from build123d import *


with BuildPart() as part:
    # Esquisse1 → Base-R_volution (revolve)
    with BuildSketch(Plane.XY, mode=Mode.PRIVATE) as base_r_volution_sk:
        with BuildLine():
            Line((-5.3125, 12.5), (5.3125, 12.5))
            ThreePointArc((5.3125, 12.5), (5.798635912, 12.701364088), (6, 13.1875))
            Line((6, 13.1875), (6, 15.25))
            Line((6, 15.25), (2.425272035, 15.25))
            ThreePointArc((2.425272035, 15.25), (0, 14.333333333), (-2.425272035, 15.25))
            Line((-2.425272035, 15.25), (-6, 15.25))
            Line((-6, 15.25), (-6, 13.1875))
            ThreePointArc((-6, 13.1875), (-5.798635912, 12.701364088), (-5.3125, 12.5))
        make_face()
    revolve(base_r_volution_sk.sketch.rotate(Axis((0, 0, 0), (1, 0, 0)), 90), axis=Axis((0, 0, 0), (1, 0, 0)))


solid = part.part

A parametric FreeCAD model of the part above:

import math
import FreeCAD as App
import Part
import Sketcher
Q = App.Units.Quantity

doc = App.newDocument("Part")
params = doc.addObject("Spreadsheet::Sheet", "Params")
for row, (alias, value) in enumerate([
    ("revolution_angle", "360 deg"),
], start=1):
    params.set(f"A{row}", alias)
    params.set(f"B{row}", "=" + value)
    params.setAlias(f"B{row}", alias)

body = doc.addObject("PartDesign::Body", "Body")

# Sketch on XY plane
sketch1 = body.newObject("Sketcher::SketchObject", "Sketch")
sketch1.AttachmentSupport = (doc.getObject("XY_Plane"), [""])
sketch1.MapMode = "FlatFace"
sketch1.addGeometry(Part.LineSegment(App.Vector(-5.3125, 12.5, 0), App.Vector(5.3125, 12.5, 0)), False)
sketch1.addGeometry(Part.ArcOfCircle(Part.Circle(App.Vector(5.3125, 13.1875, 0), App.Vector(0, 0, 1), 0.6875), math.radians(-90), math.radians(0)), False)
sketch1.addGeometry(Part.LineSegment(App.Vector(6, 13.1875, 0), App.Vector(6, 15.25, 0)), False)
sketch1.addGeometry(Part.LineSegment(App.Vector(6, 15.25, 0), App.Vector(2.425272, 15.25, 0)), False)
sketch1.addGeometry(Part.ArcOfCircle(Part.Circle(App.Vector(0, 18, 0), App.Vector(0, 0, 1), 3.666667), math.radians(-131.409622), math.radians(-48.590378)), False)
sketch1.addGeometry(Part.LineSegment(App.Vector(-2.425272, 15.25, 0), App.Vector(-6, 15.25, 0)), False)
sketch1.addGeometry(Part.LineSegment(App.Vector(-6, 15.25, 0), App.Vector(-6, 13.1875, 0)), False)
sketch1.addGeometry(Part.ArcOfCircle(Part.Circle(App.Vector(-5.3125, 13.1875, 0), App.Vector(0, 0, 1), 0.6875), math.radians(180), math.radians(270)), False)
sketch1.addConstraint(Sketcher.Constraint("Tangent", 0, 2, 1, 1))
sketch1.addConstraint(Sketcher.Constraint("Tangent", 1, 2, 2, 1))
sketch1.addConstraint(Sketcher.Constraint("Coincident", 2, 2, 3, 1))
sketch1.addConstraint(Sketcher.Constraint("Coincident", 3, 2, 4, 2))
sketch1.addConstraint(Sketcher.Constraint("Coincident", 4, 1, 5, 1))
sketch1.addConstraint(Sketcher.Constraint("Coincident", 5, 2, 6, 1))
sketch1.addConstraint(Sketcher.Constraint("Tangent", 6, 2, 7, 1))
sketch1.addConstraint(Sketcher.Constraint("Tangent", 7, 2, 0, 1))
sketch1.addConstraint(Sketcher.Constraint("Horizontal", 0))
sketch1.addConstraint(Sketcher.Constraint("Vertical", 2))
sketch1.addConstraint(Sketcher.Constraint("Horizontal", 3))
sketch1.addConstraint(Sketcher.Constraint("Horizontal", 5))
sketch1.addConstraint(Sketcher.Constraint("Vertical", 6))
sketch1.addConstraint(Sketcher.Constraint("Equal", 1, 7))
sketch1.addConstraint(Sketcher.Constraint("Symmetric", 3, 2, 4, 1, -2))
sketch1.addConstraint(Sketcher.Constraint("Equal", 3, 5))
sketch1.addConstraint(Sketcher.Constraint("DistanceY", -1, 1, 4, 3, Q("18 mm")))
sketch1.addConstraint(Sketcher.Constraint("DistanceX", -1, 1, 1, 2, Q("6 mm")))
sketch1.addConstraint(Sketcher.Constraint("DistanceY", -1, 1, 0, 2, Q("12.5 mm")))
sketch1.addConstraint(Sketcher.Constraint("Radius", 1, Q("0.6875 mm")))
sketch1.addConstraint(Sketcher.Constraint("DistanceY", -1, 1, 2, 2, Q("15.25 mm")))
sketch1.addConstraint(Sketcher.Constraint("Radius", 4, Q("3.666667 mm")))
revolution = body.newObject("PartDesign::Revolution", "Revolution")
revolution.Profile = sketch1
revolution.ReferenceAxis = (sketch1, ["H_Axis"])
revolution.setExpression("Angle", "Params.revolution_angle")

doc.recompute()
